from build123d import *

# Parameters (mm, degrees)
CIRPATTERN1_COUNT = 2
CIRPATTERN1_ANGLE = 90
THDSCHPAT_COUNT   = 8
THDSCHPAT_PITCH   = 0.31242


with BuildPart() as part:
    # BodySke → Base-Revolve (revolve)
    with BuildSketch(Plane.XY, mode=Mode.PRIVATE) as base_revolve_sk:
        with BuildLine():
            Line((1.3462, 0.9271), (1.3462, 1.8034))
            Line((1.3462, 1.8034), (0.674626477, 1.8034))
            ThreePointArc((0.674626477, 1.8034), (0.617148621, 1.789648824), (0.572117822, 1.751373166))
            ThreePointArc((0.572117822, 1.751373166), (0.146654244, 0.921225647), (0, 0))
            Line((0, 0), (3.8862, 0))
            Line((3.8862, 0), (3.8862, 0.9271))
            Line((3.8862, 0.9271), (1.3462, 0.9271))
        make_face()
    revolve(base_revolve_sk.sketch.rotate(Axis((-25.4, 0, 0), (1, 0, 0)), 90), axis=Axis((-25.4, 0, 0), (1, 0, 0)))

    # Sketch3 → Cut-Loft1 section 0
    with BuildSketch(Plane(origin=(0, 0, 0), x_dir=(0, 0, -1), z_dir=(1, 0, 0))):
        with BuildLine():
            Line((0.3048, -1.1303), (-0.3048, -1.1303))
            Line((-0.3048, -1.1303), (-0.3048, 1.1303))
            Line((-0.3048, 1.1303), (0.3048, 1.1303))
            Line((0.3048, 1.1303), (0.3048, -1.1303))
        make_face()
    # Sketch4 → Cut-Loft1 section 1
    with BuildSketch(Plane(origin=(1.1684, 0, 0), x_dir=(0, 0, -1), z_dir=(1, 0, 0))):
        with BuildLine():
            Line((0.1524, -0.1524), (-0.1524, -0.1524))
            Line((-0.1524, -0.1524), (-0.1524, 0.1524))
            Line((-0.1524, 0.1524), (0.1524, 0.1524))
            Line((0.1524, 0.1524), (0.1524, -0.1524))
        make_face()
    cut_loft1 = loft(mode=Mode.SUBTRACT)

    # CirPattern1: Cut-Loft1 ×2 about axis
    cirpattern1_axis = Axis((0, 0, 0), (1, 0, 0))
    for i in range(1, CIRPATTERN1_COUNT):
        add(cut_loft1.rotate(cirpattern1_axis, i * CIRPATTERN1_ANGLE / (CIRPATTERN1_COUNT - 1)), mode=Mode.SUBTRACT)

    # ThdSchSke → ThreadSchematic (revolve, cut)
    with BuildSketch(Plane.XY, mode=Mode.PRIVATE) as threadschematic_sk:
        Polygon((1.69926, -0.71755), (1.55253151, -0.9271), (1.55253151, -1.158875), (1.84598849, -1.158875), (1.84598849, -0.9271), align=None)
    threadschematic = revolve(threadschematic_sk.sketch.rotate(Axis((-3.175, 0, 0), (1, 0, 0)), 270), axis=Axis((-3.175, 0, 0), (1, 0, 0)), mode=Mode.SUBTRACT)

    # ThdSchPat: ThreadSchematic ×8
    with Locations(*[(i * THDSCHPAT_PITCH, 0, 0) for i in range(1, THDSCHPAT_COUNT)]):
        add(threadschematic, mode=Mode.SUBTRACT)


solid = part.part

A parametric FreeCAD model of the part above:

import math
import FreeCAD as App
import Part
import Sketcher

V = App.Vector
Q = App.Units.Quantity


def add_polygon(sketch, points):
    """Adds a closed chain of lines whose ends are joined by coincident constraints."""
    first, n = sketch.GeometryCount, len(points)
    for a, b in zip(points, points[1:] + points[:1]):
        sketch.addGeometry(Part.LineSegment(App.Vector(*a, 0), App.Vector(*b, 0)), False)
    for i in range(n):
        sketch.addConstraint(Sketcher.Constraint("Coincident", first + i, 2, first + (i + 1) % n, 1))

doc = App.newDocument("Part")
body = doc.addObject("PartDesign::Body", "Body")

# Sketch on XY plane
sketch1 = body.newObject("Sketcher::SketchObject", "Sketch")
sketch1.AttachmentSupport = (doc.getObject("XY_Plane"), [""])
sketch1.MapMode = "FlatFace"
sketch1.addGeometry(Part.LineSegment(V(1.3462, 0.9271, 0), V(1.3462, 1.8034, 0)), False)
sketch1.addGeometry(Part.LineSegment(V(1.3462, 1.8034, 0), V(0.674626, 1.8034, 0)), False)
sketch1.addGeometry(Part.ArcOfCircle(Part.Circle(V(0.674626, 1.6764, 0), V(0, 0, 1), 0.127), math.radians(90), math.radians(143.818869)), False)
sketch1.addGeometry(Part.ArcOfCircle(Part.Circle(V(2.96672, 0, 0), V(0, 0, 1), 2.96672), math.radians(143.818868), math.radians(180)), False)
sketch1.addGeometry(Part.LineSegment(V(0, 0, 0), V(3.8862, 0, 0)), False)
sketch1.addGeometry(Part.LineSegment(V(3.8862, 0, 0), V(3.8862, 0.9271, 0)), False)
sketch1.addGeometry(Part.LineSegment(V(3.8862, 0.9271, 0), V(1.3462, 0.9271, 0)), False)
sketch1.addConstraint(Sketcher.Constraint("Coincident", 0, 2, 1, 1))
sketch1.addConstraint(Sketcher.Constraint("Tangent", 1, 2, 2, 1))
sketch1.addConstraint(Sketcher.Constraint("Tangent", 2, 2, 3, 1))
sketch1.addConstraint(Sketcher.Constraint("Coincident", 3, 2, 4, 1))
sketch1.addConstraint(Sketcher.Constraint("Coincident", 4, 2, 5, 1))
sketch1.addConstraint(Sketcher.Constraint("Coincident", 5, 2, 6, 1))
sketch1.addConstraint(Sketcher.Constraint("Coincident", 6, 2, 0, 1))
sketch1.addConstraint(Sketcher.Constraint("Vertical", 0))
sketch1.addConstraint(Sketcher.Constraint("Horizontal", 1))
sketch1.addConstraint(Sketcher.Constraint("Horizontal", 4))
sketch1.addConstraint(Sketcher.Constraint("Vertical", 5))
sketch1.addConstraint(Sketcher.Constraint("Horizontal", 6))
sketch1.addConstraint(Sketcher.Constraint("Coincident", 3, 2, -1, 1))
sketch1.addConstraint(Sketcher.Constraint("PointOnObject", 3, 3, -1))
sketch1.addConstraint(Sketcher.Constraint("DistanceX", 6, 2, 6, 1, Q("0.1 in")))
sketch1.addConstraint(Sketcher.Constraint("Radius", 2, Q("0.005 in")))
sketch1.addConstraint(Sketcher.Constraint("Radius", 3, Q("0.1168 in")))
sketch1.addConstraint(Sketcher.Constraint("DistanceX", 4, 1, 4, 2, Q("0.153 in")))
sketch1.addConstraint(Sketcher.Constraint("DistanceY", 0, 1, 0, 2, Q("0.0345 in")))
sketch1.addConstraint(Sketcher.Constraint("DistanceY", 5, 1, 5, 2, Q("0.0365 in")))
revolution = body.newObject("PartDesign::Revolution", "Revolution")
revolution.Profile = sketch1
revolution.ReferenceAxis = (sketch1, ["H_Axis"])
revolution.Angle = 360

# Sketch on YZ plane
sketch2 = body.newObject("Sketcher::SketchObject", "Sketch001")
sketch2.AttachmentSupport = (doc.getObject("YZ_Plane"), [""])
sketch2.MapMode = "FlatFace"
add_polygon(sketch2, [(-1.1303, 0.3048), (-1.1303, -0.3048), (1.1303, -0.3048), (1.1303, 0.3048)])  # lines 0-3
sketch2.addConstraint(Sketcher.Constraint("Vertical", 0))
sketch2.addConstraint(Sketcher.Constraint("Horizontal", 1))
sketch2.addConstraint(Sketcher.Constraint("Vertical", 2))
sketch2.addConstraint(Sketcher.Constraint("Horizontal", 3))
sketch2.addConstraint(Sketcher.Constraint("Symmetric", 0, 2, 2, 2, -1, 1))
sketch2.addConstraint(Sketcher.Constraint("DistanceX", 1, 1, 1, 2, Q("0.089 in")))
sketch2.addConstraint(Sketcher.Constraint("DistanceY", 0, 2, 0, 1, Q("0.024 in")))

# Sketch on YZ plane
sketch3 = body.newObject("Sketcher::SketchObject", "Sketch002")
sketch3.AttachmentSupport = (doc.getObject("YZ_Plane"), [""])
sketch3.MapMode = "FlatFace"
sketch3.AttachmentOffset = App.Placement(V(0, 0, 0.046 * 25.4), App.Rotation())
add_polygon(sketch3, [(-0.1524, 0.1524), (-0.1524, -0.1524), (0.1524, -0.1524), (0.1524, 0.1524)])  # lines 0-3
sketch3.addConstraint(Sketcher.Constraint("Vertical", 0))
sketch3.addConstraint(Sketcher.Constraint("Horizontal", 1))
sketch3.addConstraint(Sketcher.Constraint("Vertical", 2))
sketch3.addConstraint(Sketcher.Constraint("Horizontal", 3))
sketch3.addConstraint(Sketcher.Constraint("Symmetric", 0, 2, 2, 2, -1, 1))
sketch3.addConstraint(Sketcher.Constraint("Equal", 3, 0))
sketch3.addConstraint(Sketcher.Constraint("DistanceX", 1, 1, 1, 2, Q("0.012 in")))

subtractiveloft = body.newObject("PartDesign::SubtractiveLoft", "SubtractiveLoft")
subtractiveloft.Profile = sketch2
subtractiveloft.Sections = [sketch3]
doc.recompute()

polarpattern = body.newObject("PartDesign::PolarPattern", "PolarPattern")
polarpattern.Originals = [subtractiveloft]
polarpattern.Axis = (doc.getObject("X_Axis"), [""])
polarpattern.Angle = 90
polarpattern.Occurrences = 2
body.Tip = polarpattern

# Sketch on XY plane
sketch4 = body.newObject("Sketcher::SketchObject", "Sketch003")
sketch4.AttachmentSupport = (doc.getObject("XY_Plane"), [""])
sketch4.MapMode = "FlatFace"
add_polygon(sketch4, [(1.69926, -0.71755), (1.552532, -0.9271), (1.552532, -1.158875), (1.845988, -1.158875), (1.845988, -0.9271)])  # lines 0-4
sketch4.addConstraint(Sketcher.Constraint("Vertical", 1))
sketch4.addConstraint(Sketcher.Constraint("Horizontal", 2))
sketch4.addConstraint(Sketcher.Constraint("Vertical", 3))
sketch4.addConstraint(Sketcher.Constraint("Horizontal", 0, 2, 3, 2))
sketch4.addConstraint(Sketcher.Constraint("Equal", 0, 4))
sketch4.addConstraint(Sketcher.Constraint("Angle", 0, Q("-125 deg")))
sketch4.addConstraint(Sketcher.Constraint("DistanceY", 0, 2, -1, 1, Q("0.0365 in")))
sketch4.addConstraint(Sketcher.Constraint("DistanceX", -1, 1, 4, 2, Q("0.0669 in")))
sketch4.addConstraint(Sketcher.Constraint("DistanceX", 2, 1, 2, 2, Q("0.293457 mm")))
sketch4.addConstraint(Sketcher.Constraint("DistanceY", 1, 2, 1, 1, Q("0.231775 mm")))
groove = body.newObject("PartDesign::Groove", "Groove")
groove.Profile = sketch4
groove.ReferenceAxis = (sketch4, ["H_Axis"])
groove.Angle = 360
doc.recompute()

linearpattern = body.newObject("PartDesign::LinearPattern", "LinearPattern")
linearpattern.Originals = [groove]
linearpattern.Direction = (doc.getObject("X_Axis"), [""])
linearpattern.Mode = "offset"
linearpattern.Offset = Q("0.0123 in")
linearpattern.Occurrences = 8
body.Tip = linearpattern

doc.recompute()
